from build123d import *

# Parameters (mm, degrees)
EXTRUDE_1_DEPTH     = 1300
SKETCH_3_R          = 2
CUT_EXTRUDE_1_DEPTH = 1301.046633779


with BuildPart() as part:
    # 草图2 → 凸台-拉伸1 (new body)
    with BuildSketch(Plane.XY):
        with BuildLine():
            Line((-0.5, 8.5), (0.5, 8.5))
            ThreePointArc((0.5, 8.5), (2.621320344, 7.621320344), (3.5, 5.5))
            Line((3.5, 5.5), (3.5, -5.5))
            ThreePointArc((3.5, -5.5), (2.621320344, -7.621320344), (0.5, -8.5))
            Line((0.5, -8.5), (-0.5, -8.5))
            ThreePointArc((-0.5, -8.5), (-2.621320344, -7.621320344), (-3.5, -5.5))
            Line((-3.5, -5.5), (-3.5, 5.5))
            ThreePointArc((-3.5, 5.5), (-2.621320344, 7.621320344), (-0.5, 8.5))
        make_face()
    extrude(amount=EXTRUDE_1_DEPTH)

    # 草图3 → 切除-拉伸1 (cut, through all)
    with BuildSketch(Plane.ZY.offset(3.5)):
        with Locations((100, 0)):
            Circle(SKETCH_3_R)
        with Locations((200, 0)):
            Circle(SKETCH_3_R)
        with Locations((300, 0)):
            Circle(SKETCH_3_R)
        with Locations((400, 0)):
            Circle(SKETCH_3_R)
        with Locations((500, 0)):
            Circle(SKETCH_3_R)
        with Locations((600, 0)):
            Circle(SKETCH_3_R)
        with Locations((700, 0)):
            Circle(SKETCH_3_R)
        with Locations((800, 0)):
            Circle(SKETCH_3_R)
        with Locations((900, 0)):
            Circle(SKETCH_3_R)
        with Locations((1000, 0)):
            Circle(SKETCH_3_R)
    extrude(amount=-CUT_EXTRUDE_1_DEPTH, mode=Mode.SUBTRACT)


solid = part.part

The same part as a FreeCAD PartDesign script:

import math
import FreeCAD as App
import Part
import Sketcher

V = App.Vector
Q = App.Units.Quantity

doc = App.newDocument("Part")
body = doc.addObject("PartDesign::Body", "Body")

# Sketch on XY plane
sketch1 = body.newObject("Sketcher::SketchObject", "Sketch")
sketch1.AttachmentSupport = (doc.getObject("XY_Plane"), [""])
sketch1.MapMode = "FlatFace"
sketch1.addGeometry([
    Part.LineSegment(V(0.5, 8.5, 0), V(-0.5, 8.5, 0)),  # 0
    Part.ArcOfCircle(Part.Circle(V(-0.5, 5.5, 0), V(0, 0, 1), 3), math.radians(90), math.radians(180)),  # 1
    Part.LineSegment(V(-3.5, 5.5, 0), V(-3.5, -5.5, 0)),  # 2
    Part.ArcOfCircle(Part.Circle(V(-0.5, -5.5, 0), V(0, 0, 1), 3), math.radians(180), math.radians(270)),  # 3
    Part.LineSegment(V(-0.5, -8.5, 0), V(0.5, -8.5, 0)),  # 4
    Part.ArcOfCircle(Part.Circle(V(0.5, -5.5, 0), V(0, 0, 1), 3), math.radians(-90), math.radians(0)),  # 5
    Part.LineSegment(V(3.5, -5.5, 0), V(3.5, 5.5, 0)),  # 6
    Part.ArcOfCircle(Part.Circle(V(0.5, 5.5, 0), V(0, 0, 1), 3), math.radians(0), math.radians(90)),  # 7
], False)
sketch1.addConstraint([
    Sketcher.Constraint("Tangent", 0, 2, 1, 1),
    Sketcher.Constraint("Tangent", 1, 2, 2, 1),
    Sketcher.Constraint("Tangent", 2, 2, 3, 1),
    Sketcher.Constraint("Tangent", 3, 2, 4, 1),
    Sketcher.Constraint("Tangent", 4, 2, 5, 1),
    Sketcher.Constraint("Tangent", 5, 2, 6, 1),
    Sketcher.Constraint("Tangent", 6, 2, 7, 1),
    Sketcher.Constraint("Tangent", 7, 2, 0, 1),
    Sketcher.Constraint("Horizontal", 0),
    Sketcher.Constraint("Vertical", 2),
    Sketcher.Constraint("Horizontal", 4),
    Sketcher.Constraint("Vertical", 6),
    Sketcher.Constraint("Equal", 1, 3),
    Sketcher.Constraint("Equal", 3, 5),
    Sketcher.Constraint("Equal", 5, 7),
    Sketcher.Constraint("Symmetric", 1, 3, 5, 3, -1, 1),
    Sketcher.Constraint("Radius", 1, Q("3 mm")),
    Sketcher.Constraint("DistanceX", 0, 2, 0, 1, Q("1 mm")),
    Sketcher.Constraint("DistanceY", 2, 2, 2, 1, Q("11 mm")),
])
pad1 = body.newObject("PartDesign::Pad", "Pad")
pad1.Profile = sketch1
pad1.Length = 1300

# Sketch on YZ plane
sketch2 = body.newObject("Sketcher::SketchObject", "Sketch001")
sketch2.AttachmentSupport = (doc.getObject("YZ_Plane"), [""])
sketch2.MapMode = "FlatFace"
sketch2.AttachmentOffset = App.Placement(V(0, 0, -3.5), App.Rotation())
sketch2.addGeometry([
    Part.Circle(V(0, 100, 0), V(0, 0, 1), 2),  # 0
    Part.Circle(V(0, 200, 0), V(0, 0, 1), 2),  # 1
    Part.Circle(V(0, 300, 0), V(0, 0, 1), 2),  # 2
    Part.Circle(V(0, 400, 0), V(0, 0, 1), 2),  # 3
    Part.Circle(V(0, 500, 0), V(0, 0, 1), 2),  # 4
    Part.Circle(V(0, 600, 0), V(0, 0, 1), 2),  # 5
    Part.Circle(V(0, 700, 0), V(0, 0, 1), 2),  # 6
    Part.Circle(V(0, 800, 0), V(0, 0, 1), 2),  # 7
    Part.Circle(V(0, 900, 0), V(0, 0, 1), 2),  # 8
    Part.Circle(V(0, 1000, 0), V(0, 0, 1), 2),  # 9
], False)
sketch2.addConstraint([
    Sketcher.Constraint("Equal", 0, 1),
    Sketcher.Constraint("Equal", 1, 2),
    Sketcher.Constraint("Equal", 2, 3),
    Sketcher.Constraint("Equal", 3, 4),
    Sketcher.Constraint("Equal", 4, 5),
    Sketcher.Constraint("Equal", 5, 6),
    Sketcher.Constraint("Equal", 6, 7),
    Sketcher.Constraint("Equal", 7, 8),
    Sketcher.Constraint("Equal", 8, 9),
    Sketcher.Constraint("PointOnObject", 0, 3, -2),
    Sketcher.Constraint("PointOnObject", 1, 3, -2),
    Sketcher.Constraint("PointOnObject", 2, 3, -2),
    Sketcher.Constraint("PointOnObject", 3, 3, -2),
    Sketcher.Constraint("PointOnObject", 4, 3, -2),
    Sketcher.Constraint("PointOnObject", 5, 3, -2),
    Sketcher.Constraint("PointOnObject", 6, 3, -2),
    Sketcher.Constraint("PointOnObject", 7, 3, -2),
    Sketcher.Constraint("PointOnObject", 8, 3, -2),
    Sketcher.Constraint("PointOnObject", 9, 3, -2),
    Sketcher.Constraint("Diameter", 0, Q("4 mm")),
    Sketcher.Constraint("DistanceY", -1, 1, 0, 3, Q("100 mm")),
    Sketcher.Constraint("DistanceY", -1, 1, 1, 3, Q("200 mm")),
    Sketcher.Constraint("DistanceY", -1, 1, 2, 3, Q("300 mm")),
    Sketcher.Constraint("DistanceY", -1, 1, 3, 3, Q("400 mm")),
    Sketcher.Constraint("DistanceY", -1, 1, 4, 3, Q("500 mm")),
    Sketcher.Constraint("DistanceY", -1, 1, 5, 3, Q("600 mm")),
    Sketcher.Constraint("DistanceY", -1, 1, 6, 3, Q("700 mm")),
    Sketcher.Constraint("DistanceY", -1, 1, 7, 3, Q("800 mm")),
    Sketcher.Constraint("DistanceY", -1, 1, 8, 3, Q("900 mm")),
    Sketcher.Constraint("DistanceY", -1, 1, 9, 3, Q("1000 mm")),
])
pocket1 = body.newObject("PartDesign::Pocket", "Pocket")
pocket1.Profile = sketch2
pocket1.Type = "ThroughAll"
pocket1.Reversed = True

doc.recompute()
